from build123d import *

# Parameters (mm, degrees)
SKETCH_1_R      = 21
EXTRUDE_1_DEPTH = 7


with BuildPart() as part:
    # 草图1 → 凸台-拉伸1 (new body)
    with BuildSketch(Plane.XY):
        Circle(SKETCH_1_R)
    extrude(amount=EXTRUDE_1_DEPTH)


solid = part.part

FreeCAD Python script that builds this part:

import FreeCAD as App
import Part
import Sketcher
from FreeCAD import Vector

doc = App.newDocument("Part")
params = doc.addObject("Spreadsheet::Sheet", "Params")
for row, (alias, value) in enumerate([
    ("sketch1_diameter", "42 mm"),
    ("pad1_length", "7 mm"),
], start=1):
    params.set(f"A{row}", alias)
    params.set(f"B{row}", "=" + value)
    params.setAlias(f"B{row}", alias)

body = doc.addObject("PartDesign::Body", "Body")

# Sketch on XY plane
sketch1 = body.newObject("Sketcher::SketchObject", "Sketch")
sketch1.AttachmentSupport = (doc.getObject("XY_Plane"), [""])
sketch1.MapMode = "FlatFace"
sketch1.addGeometry(Part.Circle(Vector(0, 0, 0), Vector(0, 0, 1), 21), False)
sketch1.addConstraint([
    Sketcher.Constraint("Coincident", 0, 3, -1, 1),
    Sketcher.Constraint("Diameter", 0, 42.0),
])
sketch1.setExpression("Constraints[1]", "Params.sketch1_diameter")
pad1 = body.newObject("PartDesign::Pad", "Pad")
pad1.Profile = sketch1
pad1.setExpression("Length", "Params.pad1_length")

doc.recompute()
